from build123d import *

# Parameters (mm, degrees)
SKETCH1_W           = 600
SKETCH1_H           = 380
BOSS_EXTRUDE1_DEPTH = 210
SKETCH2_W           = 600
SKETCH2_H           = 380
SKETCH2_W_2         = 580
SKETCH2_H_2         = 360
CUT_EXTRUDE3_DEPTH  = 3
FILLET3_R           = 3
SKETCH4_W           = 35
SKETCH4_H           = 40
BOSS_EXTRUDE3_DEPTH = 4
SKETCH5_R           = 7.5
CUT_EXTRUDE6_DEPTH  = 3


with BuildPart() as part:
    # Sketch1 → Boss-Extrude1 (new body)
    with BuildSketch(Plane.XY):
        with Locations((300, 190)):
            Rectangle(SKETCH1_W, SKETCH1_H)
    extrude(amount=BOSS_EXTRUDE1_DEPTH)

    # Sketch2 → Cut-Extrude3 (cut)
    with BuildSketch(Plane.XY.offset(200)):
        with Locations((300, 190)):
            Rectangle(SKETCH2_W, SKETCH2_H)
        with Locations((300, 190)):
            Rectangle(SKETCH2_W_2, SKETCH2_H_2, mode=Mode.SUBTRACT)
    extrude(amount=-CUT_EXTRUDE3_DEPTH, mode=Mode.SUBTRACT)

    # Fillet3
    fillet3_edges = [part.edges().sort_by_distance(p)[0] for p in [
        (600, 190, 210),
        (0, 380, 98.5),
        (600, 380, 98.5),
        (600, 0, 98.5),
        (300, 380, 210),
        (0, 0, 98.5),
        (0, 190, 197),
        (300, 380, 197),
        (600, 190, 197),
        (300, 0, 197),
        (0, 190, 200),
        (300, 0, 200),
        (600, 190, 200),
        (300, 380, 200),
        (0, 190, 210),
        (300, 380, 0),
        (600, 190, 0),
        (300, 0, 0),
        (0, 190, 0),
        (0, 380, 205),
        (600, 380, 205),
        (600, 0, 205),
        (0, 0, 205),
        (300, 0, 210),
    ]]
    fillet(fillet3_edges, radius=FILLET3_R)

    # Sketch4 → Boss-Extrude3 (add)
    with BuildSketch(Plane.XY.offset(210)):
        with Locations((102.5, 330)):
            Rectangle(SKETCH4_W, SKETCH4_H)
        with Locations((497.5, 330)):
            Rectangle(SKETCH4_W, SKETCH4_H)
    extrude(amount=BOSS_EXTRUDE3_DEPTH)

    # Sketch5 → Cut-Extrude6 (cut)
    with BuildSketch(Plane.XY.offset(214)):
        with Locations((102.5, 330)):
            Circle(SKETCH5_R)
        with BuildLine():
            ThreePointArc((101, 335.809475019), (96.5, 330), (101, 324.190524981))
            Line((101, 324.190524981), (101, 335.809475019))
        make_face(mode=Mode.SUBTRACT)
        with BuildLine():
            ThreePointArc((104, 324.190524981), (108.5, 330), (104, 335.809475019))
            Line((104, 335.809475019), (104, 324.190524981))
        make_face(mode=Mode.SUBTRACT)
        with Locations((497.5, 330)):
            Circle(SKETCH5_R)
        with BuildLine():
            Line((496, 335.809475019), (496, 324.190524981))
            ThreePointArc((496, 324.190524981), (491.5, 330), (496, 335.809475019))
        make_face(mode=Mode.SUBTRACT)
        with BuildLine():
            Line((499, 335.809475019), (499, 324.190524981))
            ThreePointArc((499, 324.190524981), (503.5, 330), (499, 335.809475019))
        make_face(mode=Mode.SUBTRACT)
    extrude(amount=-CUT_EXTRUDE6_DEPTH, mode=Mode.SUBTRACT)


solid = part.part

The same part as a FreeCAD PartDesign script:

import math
import FreeCAD as App
import Part
import Sketcher


def edges_at(feature, points):
    """Names of the edges that pass closest to the given points."""
    edges = feature.Shape.Edges
    near = lambda p: min(range(len(edges)), key=lambda i: edges[i].distToShape(Part.Vertex(*p))[0])
    return sorted({f"Edge{near(p) + 1}" for p in points})

doc = App.newDocument("Part")
body = doc.addObject("PartDesign::Body", "Body")

# Sketch on XY plane
sketch1 = doc.addObject("Sketcher::SketchObject", "Sketch")
body.addObject(sketch1)
sketch1.AttachmentSupport = (doc.XY_Plane, [""])
sketch1.MapMode = "FlatFace"
sketch1.addGeometry(Part.LineSegment(App.Vector(0, 380, 0), App.Vector(0, 0, 0)), False)
sketch1.addGeometry(Part.LineSegment(App.Vector(0, 0, 0), App.Vector(600, 0, 0)), False)
sketch1.addGeometry(Part.LineSegment(App.Vector(600, 0, 0), App.Vector(600, 380, 0)), False)
sketch1.addGeometry(Part.LineSegment(App.Vector(600, 380, 0), App.Vector(0, 380, 0)), False)
sketch1.addConstraint(Sketcher.Constraint("Coincident", 0, 2, 1, 1))
sketch1.addConstraint(Sketcher.Constraint("Coincident", 1, 2, 2, 1))
sketch1.addConstraint(Sketcher.Constraint("Coincident", 2, 2, 3, 1))
sketch1.addConstraint(Sketcher.Constraint("Coincident", 3, 2, 0, 1))
sketch1.addConstraint(Sketcher.Constraint("Vertical", 0))
sketch1.addConstraint(Sketcher.Constraint("Horizontal", 1))
sketch1.addConstraint(Sketcher.Constraint("Vertical", 2))
sketch1.addConstraint(Sketcher.Constraint("Horizontal", 3))
sketch1.addConstraint(Sketcher.Constraint("Coincident", 0, 2, -1, 1))
sketch1.addConstraint(Sketcher.Constraint("DistanceX", 1, 1, 1, 2, 600.0))
sketch1.addConstraint(Sketcher.Constraint("DistanceY", 0, 2, 0, 1, 380.0))
pad1 = doc.addObject("PartDesign::Pad", "Pad")
body.addObject(pad1)
pad1.Profile = sketch1
pad1.Length = 210

# Sketch on XY plane
sketch2 = doc.addObject("Sketcher::SketchObject", "Sketch001")
body.addObject(sketch2)
sketch2.AttachmentSupport = (doc.XY_Plane, [""])
sketch2.MapMode = "FlatFace"
sketch2.AttachmentOffset = App.Placement(App.Vector(0, 0, 200), App.Rotation())
sketch2.addGeometry(Part.LineSegment(App.Vector(0, 380, 0), App.Vector(0, 0, 0)), False)
sketch2.addGeometry(Part.LineSegment(App.Vector(0, 0, 0), App.Vector(600, 0, 0)), False)
sketch2.addGeometry(Part.LineSegment(App.Vector(600, 0, 0), App.Vector(600, 380, 0)), False)
sketch2.addGeometry(Part.LineSegment(App.Vector(600, 380, 0), App.Vector(0, 380, 0)), False)
sketch2.addGeometry(Part.LineSegment(App.Vector(590, 10, 0), App.Vector(10, 10, 0)), False)
sketch2.addGeometry(Part.LineSegment(App.Vector(10, 10, 0), App.Vector(10, 370, 0)), False)
sketch2.addGeometry(Part.LineSegment(App.Vector(10, 370, 0), App.Vector(590, 370, 0)), False)
sketch2.addGeometry(Part.LineSegment(App.Vector(590, 370, 0), App.Vector(590, 10, 0)), False)
sketch2.addConstraint(Sketcher.Constraint("Coincident", 0, 2, 1, 1))
sketch2.addConstraint(Sketcher.Constraint("Coincident", 1, 2, 2, 1))
sketch2.addConstraint(Sketcher.Constraint("Coincident", 2, 2, 3, 1))
sketch2.addConstraint(Sketcher.Constraint("Coincident", 3, 2, 0, 1))
sketch2.addConstraint(Sketcher.Constraint("Coincident", 4, 2, 5, 1))
sketch2.addConstraint(Sketcher.Constraint("Coincident", 5, 2, 6, 1))
sketch2.addConstraint(Sketcher.Constraint("Coincident", 6, 2, 7, 1))
sketch2.addConstraint(Sketcher.Constraint("Coincident", 7, 2, 4, 1))
sketch2.addConstraint(Sketcher.Constraint("Vertical", 0))
sketch2.addConstraint(Sketcher.Constraint("Horizontal", 1))
sketch2.addConstraint(Sketcher.Constraint("Vertical", 2))
sketch2.addConstraint(Sketcher.Constraint("Horizontal", 3))
sketch2.addConstraint(Sketcher.Constraint("Horizontal", 4))
sketch2.addConstraint(Sketcher.Constraint("Vertical", 5))
sketch2.addConstraint(Sketcher.Constraint("Horizontal", 6))
sketch2.addConstraint(Sketcher.Constraint("Vertical", 7))
sketch2.addConstraint(Sketcher.Constraint("Coincident", 0, 2, -1, 1))
sketch2.addConstraint(Sketcher.Constraint("DistanceX", 1, 1, 1, 2, 600.0))
sketch2.addConstraint(Sketcher.Constraint("DistanceX", 4, 2, 4, 1, 580.0))
sketch2.addConstraint(Sketcher.Constraint("DistanceY", 0, 2, 0, 1, 380.0))
sketch2.addConstraint(Sketcher.Constraint("DistanceY", 5, 1, 5, 2, 360.0))
sketch2.addConstraint(Sketcher.Constraint("DistanceX", -1, 1, 4, 2, 10.0))
sketch2.addConstraint(Sketcher.Constraint("DistanceY", -1, 1, 4, 2, 10.0))
pocket1 = doc.addObject("PartDesign::Pocket", "Pocket")
body.addObject(pocket1)
pocket1.Profile = sketch2
pocket1.Length = 3
doc.recompute()

fillet = doc.addObject("PartDesign::Fillet", "Fillet")
body.addObject(fillet)
fillet.Base = (pocket1, edges_at(pocket1, [
    (600, 190, 210),
    (0, 380, 98.5),
    (600, 380, 98.5),
    (600, 0, 98.5),
    (300, 380, 210),
    (0, 0, 98.5),
    (0, 190, 197),
    (300, 380, 197),
    (600, 190, 197),
    (300, 0, 197),
    (0, 190, 200),
    (300, 0, 200),
    (600, 190, 200),
    (300, 380, 200),
    (0, 190, 210),
    (300, 380, 0),
    (600, 190, 0),
    (300, 0, 0),
    (0, 190, 0),
    (0, 380, 205),
    (600, 380, 205),
    (600, 0, 205),
    (0, 0, 205),
    (300, 0, 210),
]))
fillet.Radius = 3

# Sketch on XY plane
sketch3 = doc.addObject("Sketcher::SketchObject", "Sketch002")
body.addObject(sketch3)
sketch3.AttachmentSupport = (doc.XY_Plane, [""])
sketch3.MapMode = "FlatFace"
sketch3.AttachmentOffset = App.Placement(App.Vector(0, 0, 210), App.Rotation())
sketch3.addGeometry(Part.LineSegment(App.Vector(85, 350, 0), App.Vector(85, 310, 0)), False)
sketch3.addGeometry(Part.LineSegment(App.Vector(85, 310, 0), App.Vector(120, 310, 0)), False)
sketch3.addGeometry(Part.LineSegment(App.Vector(120, 310, 0), App.Vector(120, 350, 0)), False)
sketch3.addGeometry(Part.LineSegment(App.Vector(120, 350, 0), App.Vector(85, 350, 0)), False)
sketch3.addGeometry(Part.LineSegment(App.Vector(480, 350, 0), App.Vector(480, 310, 0)), False)
sketch3.addGeometry(Part.LineSegment(App.Vector(480, 310, 0), App.Vector(515, 310, 0)), False)
sketch3.addGeometry(Part.LineSegment(App.Vector(515, 310, 0), App.Vector(515, 350, 0)), False)
sketch3.addGeometry(Part.LineSegment(App.Vector(515, 350, 0), App.Vector(480, 350, 0)), False)
sketch3.addConstraint(Sketcher.Constraint("Coincident", 0, 2, 1, 1))
sketch3.addConstraint(Sketcher.Constraint("Coincident", 1, 2, 2, 1))
sketch3.addConstraint(Sketcher.Constraint("Coincident", 2, 2, 3, 1))
sketch3.addConstraint(Sketcher.Constraint("Coincident", 3, 2, 0, 1))
sketch3.addConstraint(Sketcher.Constraint("Coincident", 4, 2, 5, 1))
sketch3.addConstraint(Sketcher.Constraint("Coincident", 5, 2, 6, 1))
sketch3.addConstraint(Sketcher.Constraint("Coincident", 6, 2, 7, 1))
sketch3.addConstraint(Sketcher.Constraint("Coincident", 7, 2, 4, 1))
sketch3.addConstraint(Sketcher.Constraint("Vertical", 0))
sketch3.addConstraint(Sketcher.Constraint("Horizontal", 1))
sketch3.addConstraint(Sketcher.Constraint("Vertical", 2))
sketch3.addConstraint(Sketcher.Constraint("Horizontal", 3))
sketch3.addConstraint(Sketcher.Constraint("Vertical", 4))
sketch3.addConstraint(Sketcher.Constraint("Horizontal", 5))
sketch3.addConstraint(Sketcher.Constraint("Vertical", 6))
sketch3.addConstraint(Sketcher.Constraint("Horizontal", 7))
sketch3.addConstraint(Sketcher.Constraint("Horizontal", 1, 2, 4, 2))
sketch3.addConstraint(Sketcher.Constraint("Horizontal", 3, 2, 6, 2))
sketch3.addConstraint(Sketcher.Constraint("Equal", 3, 5))
sketch3.addConstraint(Sketcher.Constraint("DistanceX", 1, 1, 1, 2, 35.0))
sketch3.addConstraint(Sketcher.Constraint("DistanceY", 0, 2, 0, 1, 40.0))
sketch3.addConstraint(Sketcher.Constraint("DistanceX", -1, 1, 0, 2, 85.0))
sketch3.addConstraint(Sketcher.Constraint("DistanceY", -1, 1, 0, 2, 310.0))
sketch3.addConstraint(Sketcher.Constraint("DistanceX", -1, 1, 4, 2, 480.0))
pad2 = doc.addObject("PartDesign::Pad", "Pad001")
body.addObject(pad2)
pad2.Profile = sketch3
pad2.Length = 4

# Sketch on XY plane
sketch4 = doc.addObject("Sketcher::SketchObject", "Sketch003")
body.addObject(sketch4)
sketch4.AttachmentSupport = (doc.XY_Plane, [""])
sketch4.MapMode = "FlatFace"
sketch4.AttachmentOffset = App.Placement(App.Vector(0, 0, 214), App.Rotation())
sketch4.addGeometry(Part.Circle(App.Vector(102.5, 330, 0), App.Vector(0, 0, 1), 7.5), False)
sketch4.addGeometry(Part.ArcOfCircle(Part.Circle(App.Vector(102.5, 330, 0), App.Vector(0, 0, 1), 6), math.radians(104.477512), math.radians(255.522488)), False)
sketch4.addGeometry(Part.LineSegment(App.Vector(101, 335.809475, 0), App.Vector(101, 324.190525, 0)), False)
sketch4.addGeometry(Part.ArcOfCircle(Part.Circle(App.Vector(102.5, 330, 0), App.Vector(0, 0, 1), 6), math.radians(-75.522488), math.radians(75.522488)), False)
sketch4.addGeometry(Part.LineSegment(App.Vector(104, 324.190525, 0), App.Vector(104, 335.809475, 0)), False)
sketch4.addGeometry(Part.Circle(App.Vector(497.5, 330, 0), App.Vector(0, 0, 1), 7.5), False)
sketch4.addGeometry(Part.ArcOfCircle(Part.Circle(App.Vector(497.5, 330, 0), App.Vector(0, 0, 1), 6), math.radians(104.477512), math.radians(255.522488)), False)
sketch4.addGeometry(Part.LineSegment(App.Vector(496, 335.809475, 0), App.Vector(496, 324.190525, 0)), False)
sketch4.addGeometry(Part.LineSegment(App.Vector(499, 324.190525, 0), App.Vector(499, 335.809475, 0)), False)
sketch4.addGeometry(Part.ArcOfCircle(Part.Circle(App.Vector(497.5, 330, 0), App.Vector(0, 0, 1), 6), math.radians(-75.522488), math.radians(75.522488)), False)
sketch4.addConstraint(Sketcher.Constraint("Coincident", 1, 1, 2, 1))
sketch4.addConstraint(Sketcher.Constraint("Coincident", 2, 2, 1, 2))
sketch4.addConstraint(Sketcher.Constraint("Coincident", 3, 1, 4, 1))
sketch4.addConstraint(Sketcher.Constraint("Coincident", 4, 2, 3, 2))
sketch4.addConstraint(Sketcher.Constraint("Coincident", 6, 1, 7, 1))
sketch4.addConstraint(Sketcher.Constraint("Coincident", 7, 2, 6, 2))
sketch4.addConstraint(Sketcher.Constraint("Coincident", 8, 1, 9, 1))
sketch4.addConstraint(Sketcher.Constraint("Coincident", 9, 2, 8, 2))
sketch4.addConstraint(Sketcher.Constraint("Vertical", 2))
sketch4.addConstraint(Sketcher.Constraint("Vertical", 4))
sketch4.addConstraint(Sketcher.Constraint("Vertical", 7))
sketch4.addConstraint(Sketcher.Constraint("Vertical", 8))
sketch4.addConstraint(Sketcher.Constraint("Coincident", 1, 3, 0, 3))
sketch4.addConstraint(Sketcher.Constraint("Coincident", 3, 3, 0, 3))
sketch4.addConstraint(Sketcher.Constraint("Coincident", 6, 3, 5, 3))
sketch4.addConstraint(Sketcher.Constraint("Coincident", 9, 3, 5, 3))
sketch4.addConstraint(Sketcher.Constraint("Equal", 1, 3))
sketch4.addConstraint(Sketcher.Constraint("Equal", 0, 5))
sketch4.addConstraint(Sketcher.Constraint("Equal", 3, 6))
sketch4.addConstraint(Sketcher.Constraint("Equal", 6, 9))
sketch4.addConstraint(Sketcher.Constraint("Horizontal", 3, 3, 5, 3))
sketch4.addConstraint(Sketcher.Constraint("Horizontal", 2, 2, 3, 1))
sketch4.addConstraint(Sketcher.Constraint("Horizontal", 4, 2, 6, 1))
sketch4.addConstraint(Sketcher.Constraint("Horizontal", 7, 2, 8, 1))
sketch4.addConstraint(Sketcher.Constraint("Diameter", 0, 15.0))
sketch4.addConstraint(Sketcher.Constraint("Radius", 1, 6.0))
sketch4.addConstraint(Sketcher.Constraint("DistanceY", -1, 1, 0, 3, 330.0))
sketch4.addConstraint(Sketcher.Constraint("DistanceX", -1, 1, 1, 1, 101.0))
sketch4.addConstraint(Sketcher.Constraint("DistanceX", -1, 1, 3, 1, 104.0))
sketch4.addConstraint(Sketcher.Constraint("DistanceX", -1, 1, 6, 1, 496.0))
pocket2 = doc.addObject("PartDesign::Pocket", "Pocket001")
body.addObject(pocket2)
pocket2.Profile = sketch4
pocket2.Length = 3

doc.recompute()
